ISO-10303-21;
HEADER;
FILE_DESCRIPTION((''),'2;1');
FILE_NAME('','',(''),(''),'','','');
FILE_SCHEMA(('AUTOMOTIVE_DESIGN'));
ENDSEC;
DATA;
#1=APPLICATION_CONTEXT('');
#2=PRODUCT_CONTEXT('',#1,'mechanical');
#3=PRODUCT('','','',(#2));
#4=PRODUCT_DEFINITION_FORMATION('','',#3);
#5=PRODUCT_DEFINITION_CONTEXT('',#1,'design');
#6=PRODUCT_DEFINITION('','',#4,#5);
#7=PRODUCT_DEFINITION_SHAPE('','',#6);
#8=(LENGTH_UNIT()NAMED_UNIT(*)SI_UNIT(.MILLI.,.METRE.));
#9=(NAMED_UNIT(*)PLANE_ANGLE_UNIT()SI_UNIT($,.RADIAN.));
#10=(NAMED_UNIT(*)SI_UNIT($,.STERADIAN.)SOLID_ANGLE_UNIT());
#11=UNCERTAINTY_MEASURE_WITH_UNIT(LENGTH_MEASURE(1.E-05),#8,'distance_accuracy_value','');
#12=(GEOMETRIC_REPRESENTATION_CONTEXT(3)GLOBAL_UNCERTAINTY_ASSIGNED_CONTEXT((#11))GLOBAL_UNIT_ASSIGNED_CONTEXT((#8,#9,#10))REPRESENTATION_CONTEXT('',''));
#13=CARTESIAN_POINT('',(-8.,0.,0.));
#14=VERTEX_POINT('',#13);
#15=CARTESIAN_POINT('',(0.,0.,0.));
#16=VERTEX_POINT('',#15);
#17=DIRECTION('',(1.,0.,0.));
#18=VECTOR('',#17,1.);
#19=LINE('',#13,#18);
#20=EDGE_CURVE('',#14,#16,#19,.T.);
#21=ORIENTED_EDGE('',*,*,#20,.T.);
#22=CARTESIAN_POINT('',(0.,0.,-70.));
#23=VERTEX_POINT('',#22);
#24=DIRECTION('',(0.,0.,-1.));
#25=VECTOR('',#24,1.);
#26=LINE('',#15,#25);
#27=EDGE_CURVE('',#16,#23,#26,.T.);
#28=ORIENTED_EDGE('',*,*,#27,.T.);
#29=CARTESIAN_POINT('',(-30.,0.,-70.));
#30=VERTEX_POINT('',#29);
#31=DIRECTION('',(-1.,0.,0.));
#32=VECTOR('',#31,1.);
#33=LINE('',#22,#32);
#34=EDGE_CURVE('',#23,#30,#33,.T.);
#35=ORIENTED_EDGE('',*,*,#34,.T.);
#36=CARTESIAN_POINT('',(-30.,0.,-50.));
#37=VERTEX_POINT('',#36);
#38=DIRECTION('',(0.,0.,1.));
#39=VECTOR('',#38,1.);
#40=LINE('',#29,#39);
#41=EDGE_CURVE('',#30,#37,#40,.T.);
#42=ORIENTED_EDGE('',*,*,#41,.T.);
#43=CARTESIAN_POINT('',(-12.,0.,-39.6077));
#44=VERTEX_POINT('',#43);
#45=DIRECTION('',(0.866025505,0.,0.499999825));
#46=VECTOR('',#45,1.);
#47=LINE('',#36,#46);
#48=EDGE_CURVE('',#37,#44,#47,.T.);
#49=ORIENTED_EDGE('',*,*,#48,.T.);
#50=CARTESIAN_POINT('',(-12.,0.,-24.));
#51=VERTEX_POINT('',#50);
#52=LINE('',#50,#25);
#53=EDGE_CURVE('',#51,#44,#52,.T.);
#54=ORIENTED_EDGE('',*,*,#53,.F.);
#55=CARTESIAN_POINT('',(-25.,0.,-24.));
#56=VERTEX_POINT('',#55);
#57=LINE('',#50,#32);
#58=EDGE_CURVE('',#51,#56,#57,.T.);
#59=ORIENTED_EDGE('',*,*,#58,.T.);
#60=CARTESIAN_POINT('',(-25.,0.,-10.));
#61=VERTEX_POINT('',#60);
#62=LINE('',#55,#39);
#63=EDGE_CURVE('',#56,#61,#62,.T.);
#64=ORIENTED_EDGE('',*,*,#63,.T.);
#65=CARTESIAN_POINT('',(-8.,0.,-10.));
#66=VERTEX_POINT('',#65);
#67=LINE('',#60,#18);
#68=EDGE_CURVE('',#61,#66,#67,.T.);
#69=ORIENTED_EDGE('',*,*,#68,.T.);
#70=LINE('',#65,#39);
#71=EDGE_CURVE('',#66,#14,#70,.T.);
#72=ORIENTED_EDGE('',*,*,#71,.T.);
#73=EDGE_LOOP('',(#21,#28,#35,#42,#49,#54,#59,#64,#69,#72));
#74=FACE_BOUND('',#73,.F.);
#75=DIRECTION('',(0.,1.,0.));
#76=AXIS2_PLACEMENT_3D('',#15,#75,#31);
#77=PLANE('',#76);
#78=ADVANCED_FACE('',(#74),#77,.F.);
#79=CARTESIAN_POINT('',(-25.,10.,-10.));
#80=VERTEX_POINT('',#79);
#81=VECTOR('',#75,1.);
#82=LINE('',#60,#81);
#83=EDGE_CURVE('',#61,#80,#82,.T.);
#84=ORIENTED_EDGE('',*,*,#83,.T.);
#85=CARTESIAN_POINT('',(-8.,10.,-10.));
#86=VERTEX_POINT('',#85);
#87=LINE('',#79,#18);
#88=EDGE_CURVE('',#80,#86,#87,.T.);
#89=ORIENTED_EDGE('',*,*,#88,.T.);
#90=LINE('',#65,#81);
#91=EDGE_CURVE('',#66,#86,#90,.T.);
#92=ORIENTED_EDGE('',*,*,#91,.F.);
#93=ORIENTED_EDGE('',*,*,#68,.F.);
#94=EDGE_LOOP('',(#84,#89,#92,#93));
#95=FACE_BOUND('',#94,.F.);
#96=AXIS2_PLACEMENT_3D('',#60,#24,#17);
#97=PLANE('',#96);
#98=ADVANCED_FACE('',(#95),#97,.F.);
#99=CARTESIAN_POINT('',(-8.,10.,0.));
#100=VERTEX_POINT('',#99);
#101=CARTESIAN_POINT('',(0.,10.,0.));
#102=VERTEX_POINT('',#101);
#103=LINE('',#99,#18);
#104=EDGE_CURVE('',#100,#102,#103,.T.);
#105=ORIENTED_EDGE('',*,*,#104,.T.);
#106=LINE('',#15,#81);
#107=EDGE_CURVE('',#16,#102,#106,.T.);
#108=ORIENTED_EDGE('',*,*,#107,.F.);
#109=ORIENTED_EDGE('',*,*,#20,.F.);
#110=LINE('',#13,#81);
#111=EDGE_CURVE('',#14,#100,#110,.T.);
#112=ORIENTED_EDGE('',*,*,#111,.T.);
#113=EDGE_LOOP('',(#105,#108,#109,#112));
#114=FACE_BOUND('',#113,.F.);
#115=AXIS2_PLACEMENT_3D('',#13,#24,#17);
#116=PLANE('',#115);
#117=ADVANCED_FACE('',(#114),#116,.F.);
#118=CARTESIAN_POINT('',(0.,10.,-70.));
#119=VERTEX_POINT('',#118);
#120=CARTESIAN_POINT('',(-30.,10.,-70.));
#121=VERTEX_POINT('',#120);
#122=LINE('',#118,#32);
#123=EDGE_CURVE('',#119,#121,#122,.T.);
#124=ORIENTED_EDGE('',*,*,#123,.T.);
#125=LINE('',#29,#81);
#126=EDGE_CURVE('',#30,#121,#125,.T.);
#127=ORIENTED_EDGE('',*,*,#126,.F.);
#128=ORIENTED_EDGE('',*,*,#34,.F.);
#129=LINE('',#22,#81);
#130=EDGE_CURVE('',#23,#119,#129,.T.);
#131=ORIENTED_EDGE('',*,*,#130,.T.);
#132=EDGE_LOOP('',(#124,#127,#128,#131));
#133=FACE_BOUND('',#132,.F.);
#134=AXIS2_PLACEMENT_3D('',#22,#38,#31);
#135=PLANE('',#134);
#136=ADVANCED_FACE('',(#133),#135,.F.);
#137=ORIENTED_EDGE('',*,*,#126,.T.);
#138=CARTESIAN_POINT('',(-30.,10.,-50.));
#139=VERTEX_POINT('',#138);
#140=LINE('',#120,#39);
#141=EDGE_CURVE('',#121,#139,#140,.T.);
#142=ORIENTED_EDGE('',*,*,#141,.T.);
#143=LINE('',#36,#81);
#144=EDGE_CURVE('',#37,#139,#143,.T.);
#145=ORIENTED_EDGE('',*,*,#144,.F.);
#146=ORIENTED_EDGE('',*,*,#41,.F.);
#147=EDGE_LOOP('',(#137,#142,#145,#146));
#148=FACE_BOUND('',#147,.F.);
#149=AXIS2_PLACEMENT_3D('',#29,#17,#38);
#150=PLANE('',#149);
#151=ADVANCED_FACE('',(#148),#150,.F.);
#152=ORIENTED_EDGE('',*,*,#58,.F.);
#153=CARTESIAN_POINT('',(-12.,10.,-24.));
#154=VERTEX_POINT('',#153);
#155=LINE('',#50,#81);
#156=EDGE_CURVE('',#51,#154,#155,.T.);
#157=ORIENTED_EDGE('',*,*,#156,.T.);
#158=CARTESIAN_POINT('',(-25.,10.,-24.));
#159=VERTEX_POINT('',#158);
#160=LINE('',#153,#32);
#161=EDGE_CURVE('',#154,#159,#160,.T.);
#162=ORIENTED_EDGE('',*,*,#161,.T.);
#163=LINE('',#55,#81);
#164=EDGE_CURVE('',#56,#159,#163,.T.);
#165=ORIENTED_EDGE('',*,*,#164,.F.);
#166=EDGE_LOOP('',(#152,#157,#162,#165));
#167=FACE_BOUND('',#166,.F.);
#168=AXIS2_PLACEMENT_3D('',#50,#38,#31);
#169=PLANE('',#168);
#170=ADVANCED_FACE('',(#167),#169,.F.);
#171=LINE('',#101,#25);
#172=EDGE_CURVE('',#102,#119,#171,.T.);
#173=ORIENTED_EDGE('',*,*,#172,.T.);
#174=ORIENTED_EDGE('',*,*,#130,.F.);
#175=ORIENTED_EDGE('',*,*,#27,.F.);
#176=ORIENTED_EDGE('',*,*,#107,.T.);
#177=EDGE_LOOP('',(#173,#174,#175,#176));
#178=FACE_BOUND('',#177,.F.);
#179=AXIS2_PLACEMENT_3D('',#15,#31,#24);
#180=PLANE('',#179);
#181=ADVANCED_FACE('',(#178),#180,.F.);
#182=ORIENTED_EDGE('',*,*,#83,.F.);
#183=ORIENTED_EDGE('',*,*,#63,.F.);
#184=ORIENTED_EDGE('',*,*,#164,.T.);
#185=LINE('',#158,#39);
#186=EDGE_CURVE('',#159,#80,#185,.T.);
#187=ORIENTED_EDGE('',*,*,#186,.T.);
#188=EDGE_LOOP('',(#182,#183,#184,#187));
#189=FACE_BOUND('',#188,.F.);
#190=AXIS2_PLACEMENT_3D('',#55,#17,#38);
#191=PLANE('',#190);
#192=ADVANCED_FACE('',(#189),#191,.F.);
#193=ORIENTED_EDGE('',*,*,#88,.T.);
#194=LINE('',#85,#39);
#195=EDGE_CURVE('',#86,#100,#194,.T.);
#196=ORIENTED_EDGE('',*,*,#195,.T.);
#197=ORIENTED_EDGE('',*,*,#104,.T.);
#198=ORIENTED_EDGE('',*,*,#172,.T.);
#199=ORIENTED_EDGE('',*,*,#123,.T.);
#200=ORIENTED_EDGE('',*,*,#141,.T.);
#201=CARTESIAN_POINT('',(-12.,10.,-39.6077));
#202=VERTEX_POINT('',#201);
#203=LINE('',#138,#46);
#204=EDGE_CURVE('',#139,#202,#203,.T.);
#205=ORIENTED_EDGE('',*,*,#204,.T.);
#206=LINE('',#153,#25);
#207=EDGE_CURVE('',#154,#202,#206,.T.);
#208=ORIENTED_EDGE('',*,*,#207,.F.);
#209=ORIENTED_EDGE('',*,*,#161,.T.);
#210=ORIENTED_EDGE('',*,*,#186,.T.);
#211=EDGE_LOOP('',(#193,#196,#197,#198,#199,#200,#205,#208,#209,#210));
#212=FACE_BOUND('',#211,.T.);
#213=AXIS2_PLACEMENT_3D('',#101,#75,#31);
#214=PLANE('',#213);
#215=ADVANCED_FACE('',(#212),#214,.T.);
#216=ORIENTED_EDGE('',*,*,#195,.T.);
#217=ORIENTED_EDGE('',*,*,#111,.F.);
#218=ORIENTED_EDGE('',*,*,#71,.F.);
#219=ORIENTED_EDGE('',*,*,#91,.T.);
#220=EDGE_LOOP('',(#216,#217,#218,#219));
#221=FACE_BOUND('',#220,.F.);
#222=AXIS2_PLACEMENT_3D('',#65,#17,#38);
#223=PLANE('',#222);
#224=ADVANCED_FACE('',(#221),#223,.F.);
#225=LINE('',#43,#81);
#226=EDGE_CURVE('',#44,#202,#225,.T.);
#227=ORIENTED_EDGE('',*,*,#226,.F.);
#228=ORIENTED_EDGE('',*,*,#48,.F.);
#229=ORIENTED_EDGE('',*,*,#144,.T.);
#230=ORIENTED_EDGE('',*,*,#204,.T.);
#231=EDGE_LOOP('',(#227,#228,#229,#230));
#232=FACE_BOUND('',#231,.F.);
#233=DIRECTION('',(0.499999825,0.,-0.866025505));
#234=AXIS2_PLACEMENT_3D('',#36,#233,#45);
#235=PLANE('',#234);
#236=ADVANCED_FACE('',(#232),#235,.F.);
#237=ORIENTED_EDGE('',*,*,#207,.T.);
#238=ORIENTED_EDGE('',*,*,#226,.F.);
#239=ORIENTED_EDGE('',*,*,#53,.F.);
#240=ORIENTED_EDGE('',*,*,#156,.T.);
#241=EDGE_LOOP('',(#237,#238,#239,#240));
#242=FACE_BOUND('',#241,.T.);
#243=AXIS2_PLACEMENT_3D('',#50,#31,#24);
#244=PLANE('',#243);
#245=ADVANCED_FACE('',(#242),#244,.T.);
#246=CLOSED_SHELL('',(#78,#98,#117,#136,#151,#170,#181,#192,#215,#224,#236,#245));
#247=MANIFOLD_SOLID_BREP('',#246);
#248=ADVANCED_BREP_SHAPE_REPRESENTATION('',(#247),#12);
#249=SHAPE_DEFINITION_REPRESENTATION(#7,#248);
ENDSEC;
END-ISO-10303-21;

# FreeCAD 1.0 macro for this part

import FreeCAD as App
import Part
import Sketcher

V = App.Vector
Q = App.Units.Quantity

doc = App.newDocument("Part")
body = doc.addObject("PartDesign::Body", "Body")

sketch1 = body.newObject("Sketcher::SketchObject", "Sketch")
sketch1.AttachmentSupport = (doc.getObject("XZ_Plane"), [""])
sketch1.MapMode = "FlatFace"
sketch1.addGeometry([
    Part.LineSegment(V(-8, 0, 0), V(0, 0, 0)),
    Part.LineSegment(V(0, 0, 0), V(0, -70, 0)),
    Part.LineSegment(V(0, -70, 0), V(-30, -70, 0)),
    Part.LineSegment(V(-30, -70, 0), V(-30, -50, 0)),
    Part.LineSegment(V(-30, -50, 0), V(-12, -40, 0)),
    Part.LineSegment(V(-12, -40, 0), V(-12, -24, 0)),
    Part.LineSegment(V(-12, -24, 0), V(-25, -24, 0)),
    Part.LineSegment(V(-25, -24, 0), V(-25, -10, 0)),
    Part.LineSegment(V(-25, -10, 0), V(-8, -10, 0)),
    Part.LineSegment(V(-8, -10, 0), V(-8, 0, 0)),
], False)
sketch1.addConstraint([
    Sketcher.Constraint("Coincident", 0, 2, 1, 1),
    Sketcher.Constraint("Coincident", 1, 2, 2, 1),
    Sketcher.Constraint("Coincident", 2, 2, 3, 1),
    Sketcher.Constraint("Coincident", 3, 2, 4, 1),
    Sketcher.Constraint("Coincident", 4, 2, 5, 1),
    Sketcher.Constraint("Coincident", 5, 2, 6, 1),
    Sketcher.Constraint("Coincident", 6, 2, 7, 1),
    Sketcher.Constraint("Coincident", 7, 2, 8, 1),
    Sketcher.Constraint("Coincident", 8, 2, 9, 1),
    Sketcher.Constraint("Coincident", 9, 2, 0, 1),
    Sketcher.Constraint("Horizontal", 0),
    Sketcher.Constraint("Vertical", 1),
    Sketcher.Constraint("Horizontal", 2),
    Sketcher.Constraint("Vertical", 3),
    Sketcher.Constraint("Vertical", 5),
    Sketcher.Constraint("Horizontal", 6),
    Sketcher.Constraint("Vertical", 7),
    Sketcher.Constraint("Horizontal", 8),
    Sketcher.Constraint("Vertical", 9),
    Sketcher.Constraint("Coincident", 0, 2, -1, 1),
    Sketcher.Constraint("DistanceX", 0, 1, 0, 2, 8.0),
    Sketcher.Constraint("DistanceX", 2, 2, 2, 1, 30.0),
    Sketcher.Constraint("DistanceY", 1, 2, 1, 1, 70.0),
    Sketcher.Constraint("DistanceY", 3, 1, 3, 2, 20.0),
    Sketcher.Constraint("DistanceY", 7, 1, 7, 2, 14.0),
    Sketcher.Constraint("DistanceY", 9, 1, 9, 2, 10.0),
    Sketcher.Constraint("Angle", 4, Q("30 deg")),
    Sketcher.Constraint("DistanceX", 4, 2, -1, 1, 12.0),
    Sketcher.Constraint("DistanceX", 6, 2, -1, 1, 25.0),
])
pad1 = body.newObject("PartDesign::Pad", "Pad")
pad1.Profile = sketch1
pad1.Length = 10
pad1.Reversed = True

doc.recompute()
